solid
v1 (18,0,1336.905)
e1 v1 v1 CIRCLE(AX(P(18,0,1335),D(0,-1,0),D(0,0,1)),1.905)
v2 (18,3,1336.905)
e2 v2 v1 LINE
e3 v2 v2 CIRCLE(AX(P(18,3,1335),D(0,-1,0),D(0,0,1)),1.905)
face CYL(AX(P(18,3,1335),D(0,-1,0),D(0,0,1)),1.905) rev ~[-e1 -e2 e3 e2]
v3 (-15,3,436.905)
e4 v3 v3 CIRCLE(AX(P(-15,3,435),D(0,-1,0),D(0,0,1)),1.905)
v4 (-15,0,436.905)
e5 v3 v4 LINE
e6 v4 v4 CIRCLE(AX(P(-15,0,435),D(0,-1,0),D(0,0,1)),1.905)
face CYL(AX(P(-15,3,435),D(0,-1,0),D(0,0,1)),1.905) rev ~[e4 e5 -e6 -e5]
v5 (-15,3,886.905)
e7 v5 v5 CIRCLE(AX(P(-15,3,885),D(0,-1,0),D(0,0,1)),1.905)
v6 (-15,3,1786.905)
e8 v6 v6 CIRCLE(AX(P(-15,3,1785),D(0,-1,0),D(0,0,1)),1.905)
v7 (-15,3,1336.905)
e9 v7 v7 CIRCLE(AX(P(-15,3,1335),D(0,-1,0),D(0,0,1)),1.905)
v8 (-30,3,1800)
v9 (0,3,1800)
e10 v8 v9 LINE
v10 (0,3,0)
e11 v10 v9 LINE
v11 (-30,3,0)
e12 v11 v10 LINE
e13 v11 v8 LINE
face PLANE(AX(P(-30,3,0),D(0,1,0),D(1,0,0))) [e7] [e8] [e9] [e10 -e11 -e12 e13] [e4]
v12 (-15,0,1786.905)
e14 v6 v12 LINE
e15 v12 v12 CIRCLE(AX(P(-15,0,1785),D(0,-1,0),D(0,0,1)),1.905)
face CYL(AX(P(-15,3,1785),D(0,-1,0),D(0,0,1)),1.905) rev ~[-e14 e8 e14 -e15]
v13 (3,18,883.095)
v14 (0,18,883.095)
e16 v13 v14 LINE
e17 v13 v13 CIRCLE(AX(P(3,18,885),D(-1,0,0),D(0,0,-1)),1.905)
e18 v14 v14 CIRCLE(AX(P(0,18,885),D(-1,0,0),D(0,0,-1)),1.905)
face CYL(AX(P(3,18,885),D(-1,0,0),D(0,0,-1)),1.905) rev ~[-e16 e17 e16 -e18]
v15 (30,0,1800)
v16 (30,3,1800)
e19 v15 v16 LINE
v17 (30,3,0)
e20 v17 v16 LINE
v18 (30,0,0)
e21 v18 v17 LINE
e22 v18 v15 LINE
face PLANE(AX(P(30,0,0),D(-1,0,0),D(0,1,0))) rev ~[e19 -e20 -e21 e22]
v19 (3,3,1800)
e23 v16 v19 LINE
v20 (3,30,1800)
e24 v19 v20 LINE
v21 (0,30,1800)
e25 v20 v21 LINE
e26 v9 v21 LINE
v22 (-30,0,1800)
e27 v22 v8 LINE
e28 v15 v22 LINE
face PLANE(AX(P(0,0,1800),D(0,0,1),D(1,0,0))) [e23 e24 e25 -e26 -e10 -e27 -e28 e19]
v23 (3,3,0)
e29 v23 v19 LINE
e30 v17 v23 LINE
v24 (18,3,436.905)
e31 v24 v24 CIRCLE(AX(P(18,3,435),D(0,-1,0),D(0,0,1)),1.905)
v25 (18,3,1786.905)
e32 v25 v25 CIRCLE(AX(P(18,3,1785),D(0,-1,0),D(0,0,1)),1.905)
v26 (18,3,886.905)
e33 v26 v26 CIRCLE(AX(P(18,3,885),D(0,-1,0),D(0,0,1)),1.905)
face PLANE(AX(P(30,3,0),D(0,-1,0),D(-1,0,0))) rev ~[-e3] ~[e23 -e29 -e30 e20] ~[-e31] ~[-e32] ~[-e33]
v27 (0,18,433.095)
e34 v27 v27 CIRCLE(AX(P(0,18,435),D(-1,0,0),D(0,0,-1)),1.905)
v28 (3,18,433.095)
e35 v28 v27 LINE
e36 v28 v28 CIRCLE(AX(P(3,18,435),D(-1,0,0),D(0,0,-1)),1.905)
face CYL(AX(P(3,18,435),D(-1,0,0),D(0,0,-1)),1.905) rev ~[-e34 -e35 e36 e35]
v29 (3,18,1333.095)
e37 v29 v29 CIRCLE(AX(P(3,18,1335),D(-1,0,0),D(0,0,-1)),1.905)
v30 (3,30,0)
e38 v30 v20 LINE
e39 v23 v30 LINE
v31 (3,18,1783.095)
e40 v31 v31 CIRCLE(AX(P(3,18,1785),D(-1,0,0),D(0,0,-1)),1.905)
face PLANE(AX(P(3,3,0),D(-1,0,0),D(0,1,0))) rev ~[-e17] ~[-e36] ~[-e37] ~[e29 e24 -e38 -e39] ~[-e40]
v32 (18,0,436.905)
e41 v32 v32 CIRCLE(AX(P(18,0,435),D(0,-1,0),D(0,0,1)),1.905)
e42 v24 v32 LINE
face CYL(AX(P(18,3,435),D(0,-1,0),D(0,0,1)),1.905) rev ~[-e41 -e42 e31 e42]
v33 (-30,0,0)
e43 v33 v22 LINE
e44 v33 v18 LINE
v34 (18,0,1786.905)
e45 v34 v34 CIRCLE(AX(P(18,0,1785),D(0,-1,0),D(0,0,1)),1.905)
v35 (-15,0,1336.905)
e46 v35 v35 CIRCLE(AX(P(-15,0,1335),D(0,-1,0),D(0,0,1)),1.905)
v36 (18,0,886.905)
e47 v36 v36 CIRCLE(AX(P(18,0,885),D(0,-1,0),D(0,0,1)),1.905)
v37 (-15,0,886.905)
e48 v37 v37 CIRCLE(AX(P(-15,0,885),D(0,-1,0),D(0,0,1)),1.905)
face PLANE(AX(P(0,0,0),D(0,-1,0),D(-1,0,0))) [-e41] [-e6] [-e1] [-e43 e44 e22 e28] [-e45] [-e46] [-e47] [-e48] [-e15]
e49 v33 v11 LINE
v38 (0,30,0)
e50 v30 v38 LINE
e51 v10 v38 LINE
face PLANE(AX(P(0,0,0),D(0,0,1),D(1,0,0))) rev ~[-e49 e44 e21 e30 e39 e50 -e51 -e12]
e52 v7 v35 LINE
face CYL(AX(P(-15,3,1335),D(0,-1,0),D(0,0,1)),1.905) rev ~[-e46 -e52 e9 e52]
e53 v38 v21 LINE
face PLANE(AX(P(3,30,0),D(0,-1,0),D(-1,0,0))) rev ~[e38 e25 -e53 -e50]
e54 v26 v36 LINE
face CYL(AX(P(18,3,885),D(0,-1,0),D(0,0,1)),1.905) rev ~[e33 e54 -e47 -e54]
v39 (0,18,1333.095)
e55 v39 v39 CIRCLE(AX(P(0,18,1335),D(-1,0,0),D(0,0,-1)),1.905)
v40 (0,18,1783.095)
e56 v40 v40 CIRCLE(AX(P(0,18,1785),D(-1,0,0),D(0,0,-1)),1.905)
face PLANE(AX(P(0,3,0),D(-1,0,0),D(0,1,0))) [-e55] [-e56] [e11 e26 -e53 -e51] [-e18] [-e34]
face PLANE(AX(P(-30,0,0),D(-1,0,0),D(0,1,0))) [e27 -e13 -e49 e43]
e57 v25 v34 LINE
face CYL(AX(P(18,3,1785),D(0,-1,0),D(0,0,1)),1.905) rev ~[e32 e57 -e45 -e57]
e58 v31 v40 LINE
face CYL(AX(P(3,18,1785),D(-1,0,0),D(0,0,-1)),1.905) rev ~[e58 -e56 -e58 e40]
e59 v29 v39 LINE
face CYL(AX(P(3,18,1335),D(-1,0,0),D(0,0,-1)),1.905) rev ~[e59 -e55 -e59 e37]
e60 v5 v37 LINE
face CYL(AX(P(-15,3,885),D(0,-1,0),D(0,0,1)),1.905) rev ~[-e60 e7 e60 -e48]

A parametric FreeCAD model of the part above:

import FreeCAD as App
import Part
import Sketcher
from FreeCAD import Vector
Q = App.Units.Quantity

doc = App.newDocument("Part")
body = doc.addObject("PartDesign::Body", "Body")

# Sketch on XY plane
sketch1 = body.newObject("Sketcher::SketchObject", "Sketch")
sketch1.AttachmentSupport = (doc.getObject("XY_Plane"), [""])
sketch1.MapMode = "FlatFace"
sketch1.addGeometry([
    Part.LineSegment(Vector(-30, 0, 0), Vector(30, 0, 0)),  # 0
    Part.LineSegment(Vector(30, 0, 0), Vector(30, 3, 0)),  # 1
    Part.LineSegment(Vector(30, 3, 0), Vector(3, 3, 0)),  # 2
    Part.LineSegment(Vector(3, 3, 0), Vector(3, 30, 0)),  # 3
    Part.LineSegment(Vector(3, 30, 0), Vector(0, 30, 0)),  # 4
    Part.LineSegment(Vector(0, 30, 0), Vector(0, 3, 0)),  # 5
    Part.LineSegment(Vector(0, 3, 0), Vector(-30, 3, 0)),  # 6
    Part.LineSegment(Vector(-30, 3, 0), Vector(-30, 0, 0)),  # 7
], False)
sketch1.addConstraint([
    Sketcher.Constraint("Coincident", 0, 2, 1, 1),
    Sketcher.Constraint("Coincident", 1, 2, 2, 1),
    Sketcher.Constraint("Coincident", 2, 2, 3, 1),
    Sketcher.Constraint("Coincident", 3, 2, 4, 1),
    Sketcher.Constraint("Coincident", 4, 2, 5, 1),
    Sketcher.Constraint("Coincident", 5, 2, 6, 1),
    Sketcher.Constraint("Coincident", 6, 2, 7, 1),
    Sketcher.Constraint("Coincident", 7, 2, 0, 1),
    Sketcher.Constraint("Horizontal", 0),
    Sketcher.Constraint("Vertical", 1),
    Sketcher.Constraint("Horizontal", 2),
    Sketcher.Constraint("Vertical", 3),
    Sketcher.Constraint("Horizontal", 4),
    Sketcher.Constraint("Vertical", 5),
    Sketcher.Constraint("Horizontal", 6),
    Sketcher.Constraint("Vertical", 7),
    Sketcher.Constraint("Symmetric", 0, 2, 7, 2, -1, 1),
    Sketcher.Constraint("PointOnObject", 4, 2, -2),
    Sketcher.Constraint("Horizontal", 2, 2, 5, 2),
    Sketcher.Constraint("Equal", 4, 1),
    Sketcher.Constraint("Equal", 2, 3),
    Sketcher.Constraint("DistanceX", 4, 2, 4, 1, Q("0.1181 in")),
    Sketcher.Constraint("DistanceX", 6, 2, 6, 1, Q("1.1811 in")),
])
pad1 = body.newObject("PartDesign::Pad", "Pad")
pad1.Profile = sketch1
pad1.Length = 1800

# Sketch on XZ plane
sketch2 = body.newObject("Sketcher::SketchObject", "Sketch001")
sketch2.AttachmentSupport = (doc.getObject("XZ_Plane"), [""])
sketch2.MapMode = "FlatFace"
sketch2.AttachmentOffset = App.Placement(Vector(0, 0, -0.1181102 * 25.4), App.Rotation())
sketch2.addGeometry([
    Part.Circle(Vector(18, 1785, 0), Vector(0, 0, 1), 1.9),  # 0
    Part.Circle(Vector(-15, 1785, 0), Vector(0, 0, 1), 1.9),  # 1
    Part.Circle(Vector(-15, 1335, 0), Vector(0, 0, 1), 1.9),  # 2
    Part.Circle(Vector(18, 1335, 0), Vector(0, 0, 1), 1.9),  # 3
    Part.Circle(Vector(18, 885, 0), Vector(0, 0, 1), 1.9),  # 4
    Part.Circle(Vector(-15, 885, 0), Vector(0, 0, 1), 1.9),  # 5
    Part.Circle(Vector(-15, 435, 0), Vector(0, 0, 1), 1.9),  # 6
    Part.Circle(Vector(18, 435, 0), Vector(0, 0, 1), 1.9),  # 7
], False)
sketch2.addConstraint([
    Sketcher.Constraint("Equal", 0, 1),
    Sketcher.Constraint("Equal", 1, 2),
    Sketcher.Constraint("Equal", 2, 3),
    Sketcher.Constraint("Equal", 3, 4),
    Sketcher.Constraint("Equal", 4, 5),
    Sketcher.Constraint("Equal", 5, 6),
    Sketcher.Constraint("Equal", 6, 7),
    Sketcher.Constraint("Horizontal", 0, 3, 1, 3),
    Sketcher.Constraint("Horizontal", 2, 3, 3, 3),
    Sketcher.Constraint("Horizontal", 4, 3, 5, 3),
    Sketcher.Constraint("Horizontal", 6, 3, 7, 3),
    Sketcher.Constraint("Vertical", 1, 3, 2, 3),
    Sketcher.Constraint("Vertical", 0, 3, 3, 3),
    Sketcher.Constraint("Vertical", 3, 3, 4, 3),
    Sketcher.Constraint("Vertical", 2, 3, 5, 3),
    Sketcher.Constraint("Vertical", 5, 3, 6, 3),
    Sketcher.Constraint("Vertical", 4, 3, 7, 3),
    Sketcher.Constraint("Diameter", 0, Q("0.15 in")),
    Sketcher.Constraint("DistanceY", -1, 1, 0, 3, Q("70.2756 in")),
    Sketcher.Constraint("DistanceY", 6, 3, 1, 3, Q("53.1496 in")),
    Sketcher.Constraint("DistanceX", -1, 1, 0, 3, 18.0),
    Sketcher.Constraint("DistanceX", 1, 3, -1, 1, 15.0),
    Sketcher.Constraint("DistanceY", -1, 1, 2, 3, 1335.0),
    Sketcher.Constraint("DistanceY", -1, 1, 4, 3, 885.0),
])
doc.recompute()
hole = body.newObject("PartDesign::Hole", "Hole")
hole.Profile = sketch2
hole.ThreadType = "None"
hole.Diameter = Q("0.15 in")
hole.DepthType = "ThroughAll"
hole.Reversed = True

# Sketch on YZ plane
sketch3 = body.newObject("Sketcher::SketchObject", "Sketch002")
sketch3.AttachmentSupport = (doc.getObject("YZ_Plane"), [""])
sketch3.MapMode = "FlatFace"
sketch3.AttachmentOffset = App.Placement(Vector(0, 0, 0.1181102 * 25.4), App.Rotation())
sketch3.addGeometry([
    Part.Circle(Vector(18, 1785, 0), Vector(0, 0, 1), 1.9),
    Part.Circle(Vector(18, 1335, 0), Vector(0, 0, 1), 1.9),
    Part.Circle(Vector(18, 885, 0), Vector(0, 0, 1), 1.9),
    Part.Circle(Vector(18, 435, 0), Vector(0, 0, 1), 1.9),
], False)
sketch3.addConstraint([
    Sketcher.Constraint("Equal", 0, 1),
    Sketcher.Constraint("Equal", 1, 2),
    Sketcher.Constraint("Equal", 2, 3),
    Sketcher.Constraint("Vertical", 0, 3, 1, 3),
    Sketcher.Constraint("Vertical", 1, 3, 2, 3),
    Sketcher.Constraint("Vertical", 2, 3, 3, 3),
    Sketcher.Constraint("Diameter", 0, Q("0.15 in")),
    Sketcher.Constraint("DistanceY", -1, 1, 0, 3, Q("70.2756 in")),
    Sketcher.Constraint("DistanceY", 3, 3, 0, 3, Q("53.1496 in")),
    Sketcher.Constraint("DistanceX", -1, 1, 0, 3, 18.0),
    Sketcher.Constraint("DistanceY", -1, 1, 1, 3, 1335.0),
    Sketcher.Constraint("DistanceY", -1, 1, 2, 3, 885.0),
])
doc.recompute()
hole2 = body.newObject("PartDesign::Hole", "Hole001")
hole2.Profile = sketch3
hole2.ThreadType = "None"
hole2.Diameter = Q("0.15 in")
hole2.DepthType = "ThroughAll"

doc.recompute()
